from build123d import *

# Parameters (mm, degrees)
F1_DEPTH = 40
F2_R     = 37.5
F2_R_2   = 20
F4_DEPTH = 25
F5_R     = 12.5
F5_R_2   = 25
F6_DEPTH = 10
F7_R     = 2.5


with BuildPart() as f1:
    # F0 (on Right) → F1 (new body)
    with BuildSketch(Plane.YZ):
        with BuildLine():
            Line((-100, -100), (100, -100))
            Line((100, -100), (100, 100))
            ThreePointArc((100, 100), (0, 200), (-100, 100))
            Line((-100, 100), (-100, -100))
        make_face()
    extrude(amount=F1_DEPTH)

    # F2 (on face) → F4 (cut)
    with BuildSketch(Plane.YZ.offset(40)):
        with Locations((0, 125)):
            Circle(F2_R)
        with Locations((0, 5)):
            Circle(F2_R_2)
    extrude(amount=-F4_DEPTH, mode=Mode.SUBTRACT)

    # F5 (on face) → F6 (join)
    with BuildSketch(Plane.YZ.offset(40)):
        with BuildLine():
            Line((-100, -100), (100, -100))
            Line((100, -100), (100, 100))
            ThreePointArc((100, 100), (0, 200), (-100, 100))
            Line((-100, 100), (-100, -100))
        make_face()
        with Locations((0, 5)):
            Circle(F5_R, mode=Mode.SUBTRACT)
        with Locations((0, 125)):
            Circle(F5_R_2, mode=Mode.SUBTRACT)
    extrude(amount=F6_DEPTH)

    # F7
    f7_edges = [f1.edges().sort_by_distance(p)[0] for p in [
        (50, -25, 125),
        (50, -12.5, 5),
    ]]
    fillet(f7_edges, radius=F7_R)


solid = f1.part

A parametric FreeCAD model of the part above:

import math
import FreeCAD as App
import Part
import Sketcher

V = App.Vector


def edges_at(feature, points):
    """Names of the edges that pass closest to the given points."""
    edges = feature.Shape.Edges
    near = lambda p: min(range(len(edges)), key=lambda i: edges[i].distToShape(Part.Vertex(*p))[0])
    return sorted({f"Edge{near(p) + 1}" for p in points})

doc = App.newDocument("Part")
body = doc.addObject("PartDesign::Body", "Body")

# Sketch on YZ plane
sketch1 = body.newObject("Sketcher::SketchObject", "Sketch")
sketch1.AttachmentSupport = (doc.getObject("YZ_Plane"), [""])
sketch1.MapMode = "FlatFace"
sketch1.addGeometry([
    Part.LineSegment(V(-100, -100, 0), V(100, -100, 0)),
    Part.LineSegment(V(100, -100, 0), V(100, 100, 0)),
    Part.ArcOfCircle(Part.Circle(V(0, 100, 0), V(0, 0, 1), 100), math.radians(0), math.radians(180)),
    Part.LineSegment(V(-100, 100, 0), V(-100, -100, 0)),
], False)
sketch1.addConstraint([
    Sketcher.Constraint("Coincident", 0, 2, 1, 1),
    Sketcher.Constraint("Tangent", 1, 2, 2, 1),
    Sketcher.Constraint("Tangent", 2, 2, 3, 1),
    Sketcher.Constraint("Coincident", 3, 2, 0, 1),
    Sketcher.Constraint("Horizontal", 0),
    Sketcher.Constraint("Vertical", 1),
    Sketcher.Constraint("Vertical", 3),
    Sketcher.Constraint("Symmetric", 0, 2, 2, 2, -1, 1),
    Sketcher.Constraint("Equal", 0, 1),
    Sketcher.Constraint("Radius", 2, 100.0),
])
pad1 = body.newObject("PartDesign::Pad", "Pad")
pad1.Profile = sketch1
pad1.Length = 40

# Sketch on YZ plane
sketch2 = body.newObject("Sketcher::SketchObject", "Sketch001")
sketch2.AttachmentSupport = (doc.getObject("YZ_Plane"), [""])
sketch2.MapMode = "FlatFace"
sketch2.AttachmentOffset = App.Placement(V(0, 0, 40), App.Rotation())
sketch2.addGeometry([
    Part.Circle(V(0, 125, 0), V(0, 0, 1), 38),
    Part.Circle(V(0, 5, 0), V(0, 0, 1), 20),
], False)
sketch2.addConstraint([
    Sketcher.Constraint("PointOnObject", 0, 3, -2),
    Sketcher.Constraint("PointOnObject", 1, 3, -2),
    Sketcher.Constraint("Diameter", 0, 75.0),
    Sketcher.Constraint("Diameter", 1, 40.0),
    Sketcher.Constraint("DistanceY", -1, 1, 0, 3, 125.0),
    Sketcher.Constraint("DistanceY", -1, 1, 1, 3, 5.0),
])
pocket1 = body.newObject("PartDesign::Pocket", "Pocket")
pocket1.Profile = sketch2
pocket1.Length = 25

# Sketch on YZ plane
sketch3 = body.newObject("Sketcher::SketchObject", "Sketch002")
sketch3.AttachmentSupport = (doc.getObject("YZ_Plane"), [""])
sketch3.MapMode = "FlatFace"
sketch3.AttachmentOffset = App.Placement(V(0, 0, 40), App.Rotation())
sketch3.addGeometry([
    Part.LineSegment(V(-100, -100, 0), V(100, -100, 0)),  # 0
    Part.LineSegment(V(100, -100, 0), V(100, 100, 0)),  # 1
    Part.ArcOfCircle(Part.Circle(V(0, 100, 0), V(0, 0, 1), 100), math.radians(0), math.radians(180)),  # 2
    Part.LineSegment(V(-100, 100, 0), V(-100, -100, 0)),  # 3
    Part.Circle(V(0, 5, 0), V(0, 0, 1), 12),  # 4
    Part.Circle(V(0, 125, 0), V(0, 0, 1), 25),  # 5
], False)
sketch3.addConstraint([
    Sketcher.Constraint("Coincident", 0, 2, 1, 1),
    Sketcher.Constraint("Tangent", 1, 2, 2, 1),
    Sketcher.Constraint("Tangent", 2, 2, 3, 1),
    Sketcher.Constraint("Coincident", 3, 2, 0, 1),
    Sketcher.Constraint("Horizontal", 0),
    Sketcher.Constraint("Vertical", 1),
    Sketcher.Constraint("Vertical", 3),
    Sketcher.Constraint("Symmetric", 0, 2, 2, 2, -1, 1),
    Sketcher.Constraint("PointOnObject", 4, 3, -2),
    Sketcher.Constraint("PointOnObject", 5, 3, -2),
    Sketcher.Constraint("Equal", 0, 1),
    Sketcher.Constraint("Diameter", 4, 25.0),
    Sketcher.Constraint("Diameter", 5, 50.0),
    Sketcher.Constraint("Radius", 2, 100.0),
    Sketcher.Constraint("DistanceY", -1, 1, 4, 3, 5.0),
    Sketcher.Constraint("DistanceY", -1, 1, 5, 3, 125.0),
])
pad2 = body.newObject("PartDesign::Pad", "Pad001")
pad2.Profile = sketch3
pad2.Length = 10
doc.recompute()

fillet = body.newObject("PartDesign::Fillet", "Fillet")
fillet.Base = (pad2, edges_at(pad2, [(50, -25, 125), (50, -12.5, 5)]))
fillet.Radius = 2.5

doc.recompute()
